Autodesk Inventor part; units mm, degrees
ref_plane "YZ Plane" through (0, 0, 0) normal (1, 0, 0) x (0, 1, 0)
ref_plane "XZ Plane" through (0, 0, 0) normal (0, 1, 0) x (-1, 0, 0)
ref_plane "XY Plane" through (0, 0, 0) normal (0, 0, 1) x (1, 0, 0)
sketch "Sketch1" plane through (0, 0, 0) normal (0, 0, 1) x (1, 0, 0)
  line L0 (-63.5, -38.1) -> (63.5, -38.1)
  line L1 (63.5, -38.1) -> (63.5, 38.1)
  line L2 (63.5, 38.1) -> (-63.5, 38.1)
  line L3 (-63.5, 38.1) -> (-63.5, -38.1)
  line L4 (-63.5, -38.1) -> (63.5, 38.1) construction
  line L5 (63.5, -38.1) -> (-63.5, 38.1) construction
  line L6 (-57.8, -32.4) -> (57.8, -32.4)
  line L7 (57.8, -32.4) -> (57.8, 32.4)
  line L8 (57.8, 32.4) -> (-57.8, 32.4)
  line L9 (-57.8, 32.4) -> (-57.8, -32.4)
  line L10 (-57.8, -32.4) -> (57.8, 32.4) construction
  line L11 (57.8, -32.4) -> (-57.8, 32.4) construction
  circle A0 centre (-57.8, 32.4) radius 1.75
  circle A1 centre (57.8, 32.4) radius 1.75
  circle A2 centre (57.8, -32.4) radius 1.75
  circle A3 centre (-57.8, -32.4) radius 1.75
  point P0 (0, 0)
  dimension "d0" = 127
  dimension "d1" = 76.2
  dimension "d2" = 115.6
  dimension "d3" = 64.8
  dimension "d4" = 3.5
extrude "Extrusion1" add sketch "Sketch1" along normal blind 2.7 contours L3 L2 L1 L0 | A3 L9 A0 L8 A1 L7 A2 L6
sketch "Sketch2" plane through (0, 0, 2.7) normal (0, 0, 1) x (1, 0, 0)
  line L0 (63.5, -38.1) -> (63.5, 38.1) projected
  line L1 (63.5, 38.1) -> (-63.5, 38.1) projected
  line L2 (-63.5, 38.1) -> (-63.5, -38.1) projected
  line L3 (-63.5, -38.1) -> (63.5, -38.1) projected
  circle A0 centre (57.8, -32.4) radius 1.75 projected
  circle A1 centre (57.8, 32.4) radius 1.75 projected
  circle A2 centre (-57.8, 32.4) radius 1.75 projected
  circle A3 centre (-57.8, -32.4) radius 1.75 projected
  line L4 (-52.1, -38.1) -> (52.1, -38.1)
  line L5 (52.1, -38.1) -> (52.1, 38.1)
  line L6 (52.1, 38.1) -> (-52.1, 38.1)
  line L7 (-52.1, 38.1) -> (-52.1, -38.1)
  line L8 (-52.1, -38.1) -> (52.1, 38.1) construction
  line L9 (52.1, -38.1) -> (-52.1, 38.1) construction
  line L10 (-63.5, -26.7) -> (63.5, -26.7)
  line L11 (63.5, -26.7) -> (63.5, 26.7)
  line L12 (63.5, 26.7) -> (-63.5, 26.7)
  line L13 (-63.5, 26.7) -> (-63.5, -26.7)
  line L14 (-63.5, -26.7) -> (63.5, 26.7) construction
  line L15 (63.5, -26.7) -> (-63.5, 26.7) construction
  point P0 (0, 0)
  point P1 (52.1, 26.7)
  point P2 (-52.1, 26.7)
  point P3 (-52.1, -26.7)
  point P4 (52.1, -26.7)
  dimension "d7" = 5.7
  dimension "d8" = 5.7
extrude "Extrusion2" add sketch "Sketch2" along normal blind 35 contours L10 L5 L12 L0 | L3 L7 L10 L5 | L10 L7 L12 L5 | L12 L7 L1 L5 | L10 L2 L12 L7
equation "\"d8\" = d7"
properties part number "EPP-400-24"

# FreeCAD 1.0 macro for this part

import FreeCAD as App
import Part
import Sketcher


def add_polygon(sketch, points):
    """Adds a closed chain of lines whose ends are joined by coincident constraints."""
    first, n = sketch.GeometryCount, len(points)
    for a, b in zip(points, points[1:] + points[:1]):
        sketch.addGeometry(Part.LineSegment(App.Vector(*a, 0), App.Vector(*b, 0)), False)
    for i in range(n):
        sketch.addConstraint(Sketcher.Constraint("Coincident", first + i, 2, first + (i + 1) % n, 1))

doc = App.newDocument("Part")
params = doc.addObject("Spreadsheet::Sheet", "Params")
for row, (alias, value) in enumerate([
    ("sketch1_diameter", "3.5 mm"),
    ("sketch1_width", "127 mm"),
    ("sketch1_height", "76.2 mm"),
    ("pad1_length", "2.7 mm"),
    ("sketch2_width", "11.4 mm"),
    ("sketch2_width2", "104.2 mm"),
    ("sketch2_height", "53.4 mm"),
    ("pad2_length", "35 mm"),
], start=1):
    params.set(f"A{row}", alias)
    params.set(f"B{row}", "=" + value)
    params.setAlias(f"B{row}", alias)

body = doc.addObject("PartDesign::Body", "Body")

# Sketch on XY plane
sketch1 = body.newObject("Sketcher::SketchObject", "Sketch")
sketch1.AttachmentSupport = (doc.getObject("XY_Plane"), [""])
sketch1.MapMode = "FlatFace"
add_polygon(sketch1, [(-63.5, 38.1), (-63.5, -38.1), (63.5, -38.1), (63.5, 38.1)])  # lines 0-3
sketch1.addGeometry(Part.Circle(App.Vector(57.8, -32.4, 0), App.Vector(0, 0, 1), 1.75), False)  # 4
sketch1.addGeometry(Part.Circle(App.Vector(57.8, 32.4, 0), App.Vector(0, 0, 1), 1.75), False)  # 5
sketch1.addGeometry(Part.Circle(App.Vector(-57.8, 32.4, 0), App.Vector(0, 0, 1), 1.75), False)  # 6
sketch1.addGeometry(Part.Circle(App.Vector(-57.8, -32.4, 0), App.Vector(0, 0, 1), 1.75), False)  # 7
sketch1.addConstraint(Sketcher.Constraint("Vertical", 0))
sketch1.addConstraint(Sketcher.Constraint("Horizontal", 1))
sketch1.addConstraint(Sketcher.Constraint("Vertical", 2))
sketch1.addConstraint(Sketcher.Constraint("Horizontal", 3))
sketch1.addConstraint(Sketcher.Constraint("Equal", 4, 5))
sketch1.addConstraint(Sketcher.Constraint("Equal", 5, 6))
sketch1.addConstraint(Sketcher.Constraint("Equal", 6, 7))
sketch1.addConstraint(Sketcher.Constraint("Symmetric", 4, 3, 6, 3, -1, 1))
sketch1.addConstraint(Sketcher.Constraint("Symmetric", 5, 3, 7, 3, -1, 1))
sketch1.addConstraint(Sketcher.Constraint("Symmetric", 0, 2, 2, 2, -1, 1))
sketch1.addConstraint(Sketcher.Constraint("Symmetric", 5, 3, 6, 3, -2))
sketch1.addConstraint(Sketcher.Constraint("Diameter", 4, 3.5))
sketch1.addConstraint(Sketcher.Constraint("DistanceX", 1, 1, 1, 2, 127.0))
sketch1.addConstraint(Sketcher.Constraint("DistanceY", 0, 2, 0, 1, 76.2))
sketch1.addConstraint(Sketcher.Constraint("DistanceY", 4, 3, 5, 3, 64.8))
sketch1.addConstraint(Sketcher.Constraint("DistanceX", 6, 3, 5, 3, 115.6))
sketch1.setExpression("Constraints[15]", "Params.sketch1_diameter")
sketch1.setExpression("Constraints[16]", "Params.sketch1_width")
sketch1.setExpression("Constraints[17]", "Params.sketch1_height")
pad1 = body.newObject("PartDesign::Pad", "Pad")
pad1.Profile = sketch1
pad1.setExpression("Length", "Params.pad1_length")

# Sketch on XY plane
sketch2 = body.newObject("Sketcher::SketchObject", "Sketch001")
sketch2.AttachmentSupport = (doc.getObject("XY_Plane"), [""])
sketch2.MapMode = "FlatFace"
sketch2.AttachmentOffset = App.Placement(App.Vector(0, 0, 2.7), App.Rotation())
add_polygon(sketch2, [(52.1, -26.7), (63.5, -26.7), (63.5, 26.7), (52.1, 26.7), (52.1, 38.1), (-52.1, 38.1), (-52.1, 26.7), (-63.5, 26.7), (-63.5, -26.7), (-52.1, -26.7), (-52.1, -38.1), (52.1, -38.1)])  # lines 0-11
sketch2.addConstraint(Sketcher.Constraint("Horizontal", 0))
sketch2.addConstraint(Sketcher.Constraint("Vertical", 1))
sketch2.addConstraint(Sketcher.Constraint("Horizontal", 2))
sketch2.addConstraint(Sketcher.Constraint("Vertical", 3))
sketch2.addConstraint(Sketcher.Constraint("Horizontal", 4))
sketch2.addConstraint(Sketcher.Constraint("Vertical", 5))
sketch2.addConstraint(Sketcher.Constraint("Horizontal", 6))
sketch2.addConstraint(Sketcher.Constraint("Vertical", 7))
sketch2.addConstraint(Sketcher.Constraint("Horizontal", 8))
sketch2.addConstraint(Sketcher.Constraint("Vertical", 9))
sketch2.addConstraint(Sketcher.Constraint("Horizontal", 10))
sketch2.addConstraint(Sketcher.Constraint("Vertical", 11))
sketch2.addConstraint(Sketcher.Constraint("Symmetric", 0, 2, 6, 2, -1, 1))
sketch2.addConstraint(Sketcher.Constraint("Symmetric", 2, 2, 8, 2, -1, 1))
sketch2.addConstraint(Sketcher.Constraint("Symmetric", 4, 2, 10, 2, -1, 1))
sketch2.addConstraint(Sketcher.Constraint("Symmetric", 2, 2, 5, 2, -2))
sketch2.addConstraint(Sketcher.Constraint("Equal", 8, 3))
sketch2.addConstraint(Sketcher.Constraint("DistanceX", 0, 1, 0, 2, 11.4))
sketch2.addConstraint(Sketcher.Constraint("DistanceX", 4, 2, 4, 1, 104.2))
sketch2.addConstraint(Sketcher.Constraint("DistanceY", 1, 1, 1, 2, 53.4))
sketch2.setExpression("Constraints[29]", "Params.sketch2_width")
sketch2.setExpression("Constraints[30]", "Params.sketch2_width2")
sketch2.setExpression("Constraints[31]", "Params.sketch2_height")
pad2 = body.newObject("PartDesign::Pad", "Pad001")
pad2.Profile = sketch2
pad2.setExpression("Length", "Params.pad2_length")

doc.recompute()
